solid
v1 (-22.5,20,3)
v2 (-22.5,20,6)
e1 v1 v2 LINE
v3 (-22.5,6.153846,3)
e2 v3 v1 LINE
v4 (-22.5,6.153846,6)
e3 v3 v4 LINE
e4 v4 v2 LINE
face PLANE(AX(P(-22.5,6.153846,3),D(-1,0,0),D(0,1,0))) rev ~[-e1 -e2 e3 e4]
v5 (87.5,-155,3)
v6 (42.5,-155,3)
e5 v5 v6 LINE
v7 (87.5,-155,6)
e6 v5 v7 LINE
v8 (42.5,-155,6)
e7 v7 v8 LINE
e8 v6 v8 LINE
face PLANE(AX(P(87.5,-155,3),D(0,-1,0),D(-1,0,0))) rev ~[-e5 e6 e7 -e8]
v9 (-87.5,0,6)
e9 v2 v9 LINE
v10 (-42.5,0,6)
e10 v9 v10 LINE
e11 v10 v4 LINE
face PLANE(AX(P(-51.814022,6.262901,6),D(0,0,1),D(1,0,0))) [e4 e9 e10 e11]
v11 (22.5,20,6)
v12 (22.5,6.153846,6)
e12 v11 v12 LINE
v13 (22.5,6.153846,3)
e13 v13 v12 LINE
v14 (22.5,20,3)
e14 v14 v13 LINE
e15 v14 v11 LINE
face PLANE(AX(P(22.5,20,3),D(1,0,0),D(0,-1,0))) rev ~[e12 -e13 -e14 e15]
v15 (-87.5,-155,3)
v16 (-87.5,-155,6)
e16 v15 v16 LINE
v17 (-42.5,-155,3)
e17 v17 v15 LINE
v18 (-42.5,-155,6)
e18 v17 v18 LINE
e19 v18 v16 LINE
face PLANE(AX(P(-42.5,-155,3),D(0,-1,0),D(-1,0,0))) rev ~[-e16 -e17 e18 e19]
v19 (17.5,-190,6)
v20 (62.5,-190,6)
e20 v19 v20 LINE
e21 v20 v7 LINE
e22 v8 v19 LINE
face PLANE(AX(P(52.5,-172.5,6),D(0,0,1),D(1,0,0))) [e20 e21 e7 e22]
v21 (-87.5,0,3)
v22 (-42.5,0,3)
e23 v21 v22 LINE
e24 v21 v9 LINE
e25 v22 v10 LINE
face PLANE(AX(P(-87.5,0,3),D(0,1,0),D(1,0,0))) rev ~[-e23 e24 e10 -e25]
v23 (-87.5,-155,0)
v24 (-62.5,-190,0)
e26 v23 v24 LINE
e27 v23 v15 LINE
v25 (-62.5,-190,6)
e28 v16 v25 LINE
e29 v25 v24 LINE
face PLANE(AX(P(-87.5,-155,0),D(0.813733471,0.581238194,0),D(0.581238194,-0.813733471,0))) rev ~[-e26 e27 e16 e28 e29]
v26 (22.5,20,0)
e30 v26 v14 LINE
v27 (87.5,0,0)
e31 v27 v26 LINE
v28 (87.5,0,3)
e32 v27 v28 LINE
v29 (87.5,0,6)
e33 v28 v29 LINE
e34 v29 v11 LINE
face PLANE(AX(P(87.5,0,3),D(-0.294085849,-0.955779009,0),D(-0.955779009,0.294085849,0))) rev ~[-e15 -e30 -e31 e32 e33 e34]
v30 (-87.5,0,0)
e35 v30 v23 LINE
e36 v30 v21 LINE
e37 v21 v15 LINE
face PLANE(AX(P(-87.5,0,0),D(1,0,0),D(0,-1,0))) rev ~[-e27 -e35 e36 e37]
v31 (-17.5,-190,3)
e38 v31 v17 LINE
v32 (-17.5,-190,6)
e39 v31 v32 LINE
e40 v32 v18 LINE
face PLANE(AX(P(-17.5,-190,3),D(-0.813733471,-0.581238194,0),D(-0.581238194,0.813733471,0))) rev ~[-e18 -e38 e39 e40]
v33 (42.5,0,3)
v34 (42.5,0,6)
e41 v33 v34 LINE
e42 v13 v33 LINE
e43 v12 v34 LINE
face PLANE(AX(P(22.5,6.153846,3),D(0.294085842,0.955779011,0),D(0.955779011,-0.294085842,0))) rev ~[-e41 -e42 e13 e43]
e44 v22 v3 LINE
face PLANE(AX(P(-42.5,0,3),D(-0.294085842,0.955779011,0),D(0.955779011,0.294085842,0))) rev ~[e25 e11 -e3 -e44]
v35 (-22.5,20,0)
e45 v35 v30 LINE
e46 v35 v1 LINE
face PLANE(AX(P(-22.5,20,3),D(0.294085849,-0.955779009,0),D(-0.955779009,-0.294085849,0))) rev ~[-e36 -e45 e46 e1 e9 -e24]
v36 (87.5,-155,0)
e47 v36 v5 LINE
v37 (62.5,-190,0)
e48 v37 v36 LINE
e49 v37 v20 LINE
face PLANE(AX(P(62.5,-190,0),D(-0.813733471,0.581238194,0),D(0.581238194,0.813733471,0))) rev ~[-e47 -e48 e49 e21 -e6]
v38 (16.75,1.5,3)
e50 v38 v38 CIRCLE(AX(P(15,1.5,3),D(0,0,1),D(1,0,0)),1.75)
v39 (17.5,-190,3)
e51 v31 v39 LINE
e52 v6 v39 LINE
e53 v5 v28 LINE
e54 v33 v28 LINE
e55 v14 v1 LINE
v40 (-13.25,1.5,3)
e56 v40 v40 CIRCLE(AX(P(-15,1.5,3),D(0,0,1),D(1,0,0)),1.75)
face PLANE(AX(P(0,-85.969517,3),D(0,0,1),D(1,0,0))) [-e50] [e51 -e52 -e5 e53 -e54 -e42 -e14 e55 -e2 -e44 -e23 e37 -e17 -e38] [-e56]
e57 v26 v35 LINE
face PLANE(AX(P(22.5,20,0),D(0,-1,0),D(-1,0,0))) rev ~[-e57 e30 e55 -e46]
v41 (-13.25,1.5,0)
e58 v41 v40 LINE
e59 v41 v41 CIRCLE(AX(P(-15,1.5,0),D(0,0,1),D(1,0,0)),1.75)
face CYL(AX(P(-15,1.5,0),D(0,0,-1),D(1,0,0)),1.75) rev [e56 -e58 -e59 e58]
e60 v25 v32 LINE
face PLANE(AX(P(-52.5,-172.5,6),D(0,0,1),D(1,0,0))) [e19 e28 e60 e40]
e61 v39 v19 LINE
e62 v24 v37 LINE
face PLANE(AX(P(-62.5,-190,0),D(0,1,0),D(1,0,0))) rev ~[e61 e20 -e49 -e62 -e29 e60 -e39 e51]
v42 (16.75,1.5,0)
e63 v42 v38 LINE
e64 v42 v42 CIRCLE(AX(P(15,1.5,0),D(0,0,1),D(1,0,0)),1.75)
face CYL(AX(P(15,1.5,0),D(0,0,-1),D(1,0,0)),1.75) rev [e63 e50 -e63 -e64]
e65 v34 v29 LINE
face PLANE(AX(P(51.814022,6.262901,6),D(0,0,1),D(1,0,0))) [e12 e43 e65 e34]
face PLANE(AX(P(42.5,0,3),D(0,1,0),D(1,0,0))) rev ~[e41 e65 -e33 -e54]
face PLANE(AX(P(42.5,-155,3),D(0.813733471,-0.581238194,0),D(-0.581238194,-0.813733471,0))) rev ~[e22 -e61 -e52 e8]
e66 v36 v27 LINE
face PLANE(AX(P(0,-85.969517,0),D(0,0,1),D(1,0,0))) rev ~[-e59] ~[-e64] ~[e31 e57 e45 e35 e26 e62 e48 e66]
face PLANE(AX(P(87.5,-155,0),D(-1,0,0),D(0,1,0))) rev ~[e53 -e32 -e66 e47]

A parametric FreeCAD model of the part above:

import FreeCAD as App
import Part
import Sketcher

V = App.Vector
Q = App.Units.Quantity

doc = App.newDocument("Part")
body = doc.addObject("PartDesign::Body", "Body")

sketch1 = body.newObject("Sketcher::SketchObject", "Sketch")
sketch1.AttachmentSupport = (doc.getObject("XY_Plane"), [""])
sketch1.MapMode = "FlatFace"
sketch1.addGeometry(Part.LineSegment(V(22.5, 20, 0), V(-22.5, 20, 0)), False)
sketch1.addGeometry(Part.LineSegment(V(-22.5, 20, 0), V(-87.5, 0, 0)), False)
sketch1.addGeometry(Part.LineSegment(V(-87.5, 0, 0), V(-87.5, -155, 0)), False)
sketch1.addGeometry(Part.LineSegment(V(-87.5, -155, 0), V(-62.5, -190, 0)), False)
sketch1.addGeometry(Part.LineSegment(V(-62.5, -190, 0), V(62.5, -190, 0)), False)
sketch1.addGeometry(Part.LineSegment(V(62.5, -190, 0), V(87.5, -155, 0)), False)
sketch1.addGeometry(Part.LineSegment(V(87.5, -155, 0), V(87.5, 0, 0)), False)
sketch1.addGeometry(Part.LineSegment(V(87.5, 0, 0), V(22.5, 20, 0)), False)
sketch1.addGeometry(Part.Circle(V(-15, 1.5, 0), V(0, 0, 1), 1.8), False)
sketch1.addGeometry(Part.Circle(V(15, 1.5, 0), V(0, 0, 1), 1.8), False)
sketch1.addConstraint(Sketcher.Constraint("Coincident", 0, 2, 1, 1))
sketch1.addConstraint(Sketcher.Constraint("Coincident", 1, 2, 2, 1))
sketch1.addConstraint(Sketcher.Constraint("Coincident", 2, 2, 3, 1))
sketch1.addConstraint(Sketcher.Constraint("Coincident", 3, 2, 4, 1))
sketch1.addConstraint(Sketcher.Constraint("Coincident", 4, 2, 5, 1))
sketch1.addConstraint(Sketcher.Constraint("Coincident", 5, 2, 6, 1))
sketch1.addConstraint(Sketcher.Constraint("Coincident", 6, 2, 7, 1))
sketch1.addConstraint(Sketcher.Constraint("Coincident", 7, 2, 0, 1))
sketch1.addConstraint(Sketcher.Constraint("Horizontal", 0))
sketch1.addConstraint(Sketcher.Constraint("Vertical", 2))
sketch1.addConstraint(Sketcher.Constraint("Horizontal", 4))
sketch1.addConstraint(Sketcher.Constraint("Vertical", 6))
sketch1.addConstraint(Sketcher.Constraint("Equal", 8, 9))
sketch1.addConstraint(Sketcher.Constraint("Symmetric", 1, 2, 6, 2, -1, 1))
sketch1.addConstraint(Sketcher.Constraint("Symmetric", 8, 3, 9, 3, -2))
sketch1.addConstraint(Sketcher.Constraint("PointOnObject", 1, 2, -1))
sketch1.addConstraint(Sketcher.Constraint("Horizontal", 2, 2, 5, 2))
sketch1.addConstraint(Sketcher.Constraint("Equal", 3, 5))
sketch1.addConstraint(Sketcher.Constraint("Equal", 1, 7))
sketch1.addConstraint(Sketcher.Constraint("Diameter", 8, Q("3.5 mm")))
sketch1.addConstraint(Sketcher.Constraint("DistanceX", 0, 2, 0, 1, Q("45 mm")))
sketch1.addConstraint(Sketcher.Constraint("DistanceX", 4, 1, 4, 2, Q("125 mm")))
sketch1.addConstraint(Sketcher.Constraint("DistanceY", 2, 2, 2, 1, Q("155 mm")))
sketch1.addConstraint(Sketcher.Constraint("DistanceX", 8, 3, -1, 1, Q("15 mm")))
sketch1.addConstraint(Sketcher.Constraint("DistanceY", -1, 1, 0, 2, Q("20 mm")))
sketch1.addConstraint(Sketcher.Constraint("DistanceY", 3, 2, -1, 1, Q("190 mm")))
sketch1.addConstraint(Sketcher.Constraint("DistanceX", 1, 2, 0, 2, Q("65 mm")))
sketch1.addConstraint(Sketcher.Constraint("DistanceY", -1, 1, 8, 3, Q("1.5 mm")))
pad1 = body.newObject("PartDesign::Pad", "Pad")
pad1.Profile = sketch1
pad1.Length = 3

sketch2 = body.newObject("Sketcher::SketchObject", "Sketch001")
sketch2.AttachmentSupport = (doc.getObject("XY_Plane"), [""])
sketch2.MapMode = "FlatFace"
sketch2.AttachmentOffset = App.Placement(V(0, 0, 3), App.Rotation())
sketch2.addGeometry(Part.LineSegment(V(-22, 6, 0), V(-22, 20, 0)), False)
sketch2.addGeometry(Part.LineSegment(V(-22, 20, 0), V(-88, 0, 0)), False)
sketch2.addGeometry(Part.LineSegment(V(-88, 0, 0), V(-42, 0, 0)), False)
sketch2.addGeometry(Part.LineSegment(V(-42, 0, 0), V(-22, 6, 0)), False)
sketch2.addGeometry(Part.LineSegment(V(-42, -155, 0), V(-88, -155, 0)), False)
sketch2.addGeometry(Part.LineSegment(V(-88, -155, 0), V(-62, -190, 0)), False)
sketch2.addGeometry(Part.LineSegment(V(-62, -190, 0), V(-18, -190, 0)), False)
sketch2.addGeometry(Part.LineSegment(V(-18, -190, 0), V(-42, -155, 0)), False)
sketch2.addGeometry(Part.LineSegment(V(22, 20, 0), V(22, 6, 0)), False)
sketch2.addGeometry(Part.LineSegment(V(22, 6, 0), V(42, 0, 0)), False)
sketch2.addGeometry(Part.LineSegment(V(42, 0, 0), V(88, 0, 0)), False)
sketch2.addGeometry(Part.LineSegment(V(88, 0, 0), V(22, 20, 0)), False)
sketch2.addGeometry(Part.LineSegment(V(88, -155, 0), V(42, -155, 0)), False)
sketch2.addGeometry(Part.LineSegment(V(42, -155, 0), V(18, -190, 0)), False)
sketch2.addGeometry(Part.LineSegment(V(18, -190, 0), V(62, -190, 0)), False)
sketch2.addGeometry(Part.LineSegment(V(62, -190, 0), V(88, -155, 0)), False)
sketch2.addConstraint(Sketcher.Constraint("Coincident", 0, 2, 1, 1))
sketch2.addConstraint(Sketcher.Constraint("Coincident", 1, 2, 2, 1))
sketch2.addConstraint(Sketcher.Constraint("Coincident", 2, 2, 3, 1))
sketch2.addConstraint(Sketcher.Constraint("Coincident", 3, 2, 0, 1))
sketch2.addConstraint(Sketcher.Constraint("Coincident", 4, 2, 5, 1))
sketch2.addConstraint(Sketcher.Constraint("Coincident", 5, 2, 6, 1))
sketch2.addConstraint(Sketcher.Constraint("Coincident", 6, 2, 7, 1))
sketch2.addConstraint(Sketcher.Constraint("Coincident", 7, 2, 4, 1))
sketch2.addConstraint(Sketcher.Constraint("Coincident", 8, 2, 9, 1))
sketch2.addConstraint(Sketcher.Constraint("Coincident", 9, 2, 10, 1))
sketch2.addConstraint(Sketcher.Constraint("Coincident", 10, 2, 11, 1))
sketch2.addConstraint(Sketcher.Constraint("Coincident", 11, 2, 8, 1))
sketch2.addConstraint(Sketcher.Constraint("Coincident", 12, 2, 13, 1))
sketch2.addConstraint(Sketcher.Constraint("Coincident", 13, 2, 14, 1))
sketch2.addConstraint(Sketcher.Constraint("Coincident", 14, 2, 15, 1))
sketch2.addConstraint(Sketcher.Constraint("Coincident", 15, 2, 12, 1))
sketch2.addConstraint(Sketcher.Constraint("Vertical", 0))
sketch2.addConstraint(Sketcher.Constraint("Horizontal", 2))
sketch2.addConstraint(Sketcher.Constraint("Horizontal", 4))
sketch2.addConstraint(Sketcher.Constraint("Horizontal", 6))
sketch2.addConstraint(Sketcher.Constraint("Vertical", 8))
sketch2.addConstraint(Sketcher.Constraint("Horizontal", 10))
sketch2.addConstraint(Sketcher.Constraint("Horizontal", 12))
sketch2.addConstraint(Sketcher.Constraint("Horizontal", 14))
sketch2.addConstraint(Sketcher.Constraint("Symmetric", 2, 2, 9, 2, -1, 1))
sketch2.addConstraint(Sketcher.Constraint("Symmetric", 3, 2, 8, 2, -2))
sketch2.addConstraint(Sketcher.Constraint("Symmetric", 1, 2, 10, 2, -2))
sketch2.addConstraint(Sketcher.Constraint("Symmetric", 7, 2, 12, 2, -2))
sketch2.addConstraint(Sketcher.Constraint("Symmetric", 6, 2, 13, 2, -2))
sketch2.addConstraint(Sketcher.Constraint("Parallel", 1, 3))
sketch2.addConstraint(Sketcher.Constraint("Parallel", 5, 7))
sketch2.addConstraint(Sketcher.Constraint("Parallel", 9, 11))
sketch2.addConstraint(Sketcher.Constraint("Parallel", 13, 15))
sketch2.addConstraint(Sketcher.Constraint("Vertical", 1, 2, 4, 2))
sketch2.addConstraint(Sketcher.Constraint("Vertical", 2, 2, 7, 2))
sketch2.addConstraint(Sketcher.Constraint("Vertical", 10, 2, 15, 2))
sketch2.addConstraint(Sketcher.Constraint("DistanceX", 2, 1, 2, 2, Q("45 mm")))
sketch2.addConstraint(Sketcher.Constraint("DistanceY", -1, 1, 0, 2, Q("20 mm")))
sketch2.addConstraint(Sketcher.Constraint("DistanceY", 4, 2, -1, 1, Q("155 mm")))
sketch2.addConstraint(Sketcher.Constraint("DistanceY", 5, 2, -1, 1, Q("190 mm")))
sketch2.addConstraint(Sketcher.Constraint("DistanceX", 1, 2, 0, 2, Q("65 mm")))
sketch2.addConstraint(Sketcher.Constraint("DistanceX", 4, 2, 5, 2, Q("25 mm")))
sketch2.addConstraint(Sketcher.Constraint("DistanceX", 3, 2, 8, 2, Q("45 mm")))
pad2 = body.newObject("PartDesign::Pad", "Pad001")
pad2.Profile = sketch2
pad2.Length = 3

doc.recompute()
